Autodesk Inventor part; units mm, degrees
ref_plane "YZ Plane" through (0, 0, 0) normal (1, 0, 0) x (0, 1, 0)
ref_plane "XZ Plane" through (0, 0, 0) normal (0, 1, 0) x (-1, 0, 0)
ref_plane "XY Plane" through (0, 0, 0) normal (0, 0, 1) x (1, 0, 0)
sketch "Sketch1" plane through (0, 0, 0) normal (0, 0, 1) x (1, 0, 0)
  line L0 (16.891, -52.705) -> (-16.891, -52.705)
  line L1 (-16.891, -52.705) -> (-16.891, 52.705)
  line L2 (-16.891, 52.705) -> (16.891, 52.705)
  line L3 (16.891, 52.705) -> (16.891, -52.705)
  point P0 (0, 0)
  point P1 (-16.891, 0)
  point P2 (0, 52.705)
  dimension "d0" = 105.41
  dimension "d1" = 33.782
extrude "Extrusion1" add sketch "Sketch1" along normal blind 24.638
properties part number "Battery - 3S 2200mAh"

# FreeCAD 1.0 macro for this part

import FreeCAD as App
import Part
import Sketcher

V = App.Vector
Q = App.Units.Quantity

doc = App.newDocument("Part")
body = doc.addObject("PartDesign::Body", "Body")

# Sketch on XY plane
sketch1 = body.newObject("Sketcher::SketchObject", "Sketch")
sketch1.AttachmentSupport = (doc.getObject("XY_Plane"), [""])
sketch1.MapMode = "FlatFace"
sketch1.addGeometry(Part.LineSegment(V(-17, -53, 0), V(17, -53, 0)), False)
sketch1.addGeometry(Part.LineSegment(V(17, -53, 0), V(17, 53, 0)), False)
sketch1.addGeometry(Part.LineSegment(V(17, 53, 0), V(-17, 53, 0)), False)
sketch1.addGeometry(Part.LineSegment(V(-17, 53, 0), V(-17, -53, 0)), False)
sketch1.addConstraint(Sketcher.Constraint("Coincident", 0, 2, 1, 1))
sketch1.addConstraint(Sketcher.Constraint("Coincident", 1, 2, 2, 1))
sketch1.addConstraint(Sketcher.Constraint("Coincident", 2, 2, 3, 1))
sketch1.addConstraint(Sketcher.Constraint("Coincident", 3, 2, 0, 1))
sketch1.addConstraint(Sketcher.Constraint("Horizontal", 0))
sketch1.addConstraint(Sketcher.Constraint("Vertical", 1))
sketch1.addConstraint(Sketcher.Constraint("Horizontal", 2))
sketch1.addConstraint(Sketcher.Constraint("Vertical", 3))
sketch1.addConstraint(Sketcher.Constraint("Symmetric", 0, 2, 2, 2, -1, 1))
sketch1.addConstraint(Sketcher.Constraint("DistanceX", 0, 1, 0, 2, Q("1.33 in")))
sketch1.addConstraint(Sketcher.Constraint("DistanceY", 1, 1, 1, 2, Q("4.15 in")))
pad1 = body.newObject("PartDesign::Pad", "Pad")
pad1.Profile = sketch1
pad1.Length = Q("0.97 in")

doc.recompute()
